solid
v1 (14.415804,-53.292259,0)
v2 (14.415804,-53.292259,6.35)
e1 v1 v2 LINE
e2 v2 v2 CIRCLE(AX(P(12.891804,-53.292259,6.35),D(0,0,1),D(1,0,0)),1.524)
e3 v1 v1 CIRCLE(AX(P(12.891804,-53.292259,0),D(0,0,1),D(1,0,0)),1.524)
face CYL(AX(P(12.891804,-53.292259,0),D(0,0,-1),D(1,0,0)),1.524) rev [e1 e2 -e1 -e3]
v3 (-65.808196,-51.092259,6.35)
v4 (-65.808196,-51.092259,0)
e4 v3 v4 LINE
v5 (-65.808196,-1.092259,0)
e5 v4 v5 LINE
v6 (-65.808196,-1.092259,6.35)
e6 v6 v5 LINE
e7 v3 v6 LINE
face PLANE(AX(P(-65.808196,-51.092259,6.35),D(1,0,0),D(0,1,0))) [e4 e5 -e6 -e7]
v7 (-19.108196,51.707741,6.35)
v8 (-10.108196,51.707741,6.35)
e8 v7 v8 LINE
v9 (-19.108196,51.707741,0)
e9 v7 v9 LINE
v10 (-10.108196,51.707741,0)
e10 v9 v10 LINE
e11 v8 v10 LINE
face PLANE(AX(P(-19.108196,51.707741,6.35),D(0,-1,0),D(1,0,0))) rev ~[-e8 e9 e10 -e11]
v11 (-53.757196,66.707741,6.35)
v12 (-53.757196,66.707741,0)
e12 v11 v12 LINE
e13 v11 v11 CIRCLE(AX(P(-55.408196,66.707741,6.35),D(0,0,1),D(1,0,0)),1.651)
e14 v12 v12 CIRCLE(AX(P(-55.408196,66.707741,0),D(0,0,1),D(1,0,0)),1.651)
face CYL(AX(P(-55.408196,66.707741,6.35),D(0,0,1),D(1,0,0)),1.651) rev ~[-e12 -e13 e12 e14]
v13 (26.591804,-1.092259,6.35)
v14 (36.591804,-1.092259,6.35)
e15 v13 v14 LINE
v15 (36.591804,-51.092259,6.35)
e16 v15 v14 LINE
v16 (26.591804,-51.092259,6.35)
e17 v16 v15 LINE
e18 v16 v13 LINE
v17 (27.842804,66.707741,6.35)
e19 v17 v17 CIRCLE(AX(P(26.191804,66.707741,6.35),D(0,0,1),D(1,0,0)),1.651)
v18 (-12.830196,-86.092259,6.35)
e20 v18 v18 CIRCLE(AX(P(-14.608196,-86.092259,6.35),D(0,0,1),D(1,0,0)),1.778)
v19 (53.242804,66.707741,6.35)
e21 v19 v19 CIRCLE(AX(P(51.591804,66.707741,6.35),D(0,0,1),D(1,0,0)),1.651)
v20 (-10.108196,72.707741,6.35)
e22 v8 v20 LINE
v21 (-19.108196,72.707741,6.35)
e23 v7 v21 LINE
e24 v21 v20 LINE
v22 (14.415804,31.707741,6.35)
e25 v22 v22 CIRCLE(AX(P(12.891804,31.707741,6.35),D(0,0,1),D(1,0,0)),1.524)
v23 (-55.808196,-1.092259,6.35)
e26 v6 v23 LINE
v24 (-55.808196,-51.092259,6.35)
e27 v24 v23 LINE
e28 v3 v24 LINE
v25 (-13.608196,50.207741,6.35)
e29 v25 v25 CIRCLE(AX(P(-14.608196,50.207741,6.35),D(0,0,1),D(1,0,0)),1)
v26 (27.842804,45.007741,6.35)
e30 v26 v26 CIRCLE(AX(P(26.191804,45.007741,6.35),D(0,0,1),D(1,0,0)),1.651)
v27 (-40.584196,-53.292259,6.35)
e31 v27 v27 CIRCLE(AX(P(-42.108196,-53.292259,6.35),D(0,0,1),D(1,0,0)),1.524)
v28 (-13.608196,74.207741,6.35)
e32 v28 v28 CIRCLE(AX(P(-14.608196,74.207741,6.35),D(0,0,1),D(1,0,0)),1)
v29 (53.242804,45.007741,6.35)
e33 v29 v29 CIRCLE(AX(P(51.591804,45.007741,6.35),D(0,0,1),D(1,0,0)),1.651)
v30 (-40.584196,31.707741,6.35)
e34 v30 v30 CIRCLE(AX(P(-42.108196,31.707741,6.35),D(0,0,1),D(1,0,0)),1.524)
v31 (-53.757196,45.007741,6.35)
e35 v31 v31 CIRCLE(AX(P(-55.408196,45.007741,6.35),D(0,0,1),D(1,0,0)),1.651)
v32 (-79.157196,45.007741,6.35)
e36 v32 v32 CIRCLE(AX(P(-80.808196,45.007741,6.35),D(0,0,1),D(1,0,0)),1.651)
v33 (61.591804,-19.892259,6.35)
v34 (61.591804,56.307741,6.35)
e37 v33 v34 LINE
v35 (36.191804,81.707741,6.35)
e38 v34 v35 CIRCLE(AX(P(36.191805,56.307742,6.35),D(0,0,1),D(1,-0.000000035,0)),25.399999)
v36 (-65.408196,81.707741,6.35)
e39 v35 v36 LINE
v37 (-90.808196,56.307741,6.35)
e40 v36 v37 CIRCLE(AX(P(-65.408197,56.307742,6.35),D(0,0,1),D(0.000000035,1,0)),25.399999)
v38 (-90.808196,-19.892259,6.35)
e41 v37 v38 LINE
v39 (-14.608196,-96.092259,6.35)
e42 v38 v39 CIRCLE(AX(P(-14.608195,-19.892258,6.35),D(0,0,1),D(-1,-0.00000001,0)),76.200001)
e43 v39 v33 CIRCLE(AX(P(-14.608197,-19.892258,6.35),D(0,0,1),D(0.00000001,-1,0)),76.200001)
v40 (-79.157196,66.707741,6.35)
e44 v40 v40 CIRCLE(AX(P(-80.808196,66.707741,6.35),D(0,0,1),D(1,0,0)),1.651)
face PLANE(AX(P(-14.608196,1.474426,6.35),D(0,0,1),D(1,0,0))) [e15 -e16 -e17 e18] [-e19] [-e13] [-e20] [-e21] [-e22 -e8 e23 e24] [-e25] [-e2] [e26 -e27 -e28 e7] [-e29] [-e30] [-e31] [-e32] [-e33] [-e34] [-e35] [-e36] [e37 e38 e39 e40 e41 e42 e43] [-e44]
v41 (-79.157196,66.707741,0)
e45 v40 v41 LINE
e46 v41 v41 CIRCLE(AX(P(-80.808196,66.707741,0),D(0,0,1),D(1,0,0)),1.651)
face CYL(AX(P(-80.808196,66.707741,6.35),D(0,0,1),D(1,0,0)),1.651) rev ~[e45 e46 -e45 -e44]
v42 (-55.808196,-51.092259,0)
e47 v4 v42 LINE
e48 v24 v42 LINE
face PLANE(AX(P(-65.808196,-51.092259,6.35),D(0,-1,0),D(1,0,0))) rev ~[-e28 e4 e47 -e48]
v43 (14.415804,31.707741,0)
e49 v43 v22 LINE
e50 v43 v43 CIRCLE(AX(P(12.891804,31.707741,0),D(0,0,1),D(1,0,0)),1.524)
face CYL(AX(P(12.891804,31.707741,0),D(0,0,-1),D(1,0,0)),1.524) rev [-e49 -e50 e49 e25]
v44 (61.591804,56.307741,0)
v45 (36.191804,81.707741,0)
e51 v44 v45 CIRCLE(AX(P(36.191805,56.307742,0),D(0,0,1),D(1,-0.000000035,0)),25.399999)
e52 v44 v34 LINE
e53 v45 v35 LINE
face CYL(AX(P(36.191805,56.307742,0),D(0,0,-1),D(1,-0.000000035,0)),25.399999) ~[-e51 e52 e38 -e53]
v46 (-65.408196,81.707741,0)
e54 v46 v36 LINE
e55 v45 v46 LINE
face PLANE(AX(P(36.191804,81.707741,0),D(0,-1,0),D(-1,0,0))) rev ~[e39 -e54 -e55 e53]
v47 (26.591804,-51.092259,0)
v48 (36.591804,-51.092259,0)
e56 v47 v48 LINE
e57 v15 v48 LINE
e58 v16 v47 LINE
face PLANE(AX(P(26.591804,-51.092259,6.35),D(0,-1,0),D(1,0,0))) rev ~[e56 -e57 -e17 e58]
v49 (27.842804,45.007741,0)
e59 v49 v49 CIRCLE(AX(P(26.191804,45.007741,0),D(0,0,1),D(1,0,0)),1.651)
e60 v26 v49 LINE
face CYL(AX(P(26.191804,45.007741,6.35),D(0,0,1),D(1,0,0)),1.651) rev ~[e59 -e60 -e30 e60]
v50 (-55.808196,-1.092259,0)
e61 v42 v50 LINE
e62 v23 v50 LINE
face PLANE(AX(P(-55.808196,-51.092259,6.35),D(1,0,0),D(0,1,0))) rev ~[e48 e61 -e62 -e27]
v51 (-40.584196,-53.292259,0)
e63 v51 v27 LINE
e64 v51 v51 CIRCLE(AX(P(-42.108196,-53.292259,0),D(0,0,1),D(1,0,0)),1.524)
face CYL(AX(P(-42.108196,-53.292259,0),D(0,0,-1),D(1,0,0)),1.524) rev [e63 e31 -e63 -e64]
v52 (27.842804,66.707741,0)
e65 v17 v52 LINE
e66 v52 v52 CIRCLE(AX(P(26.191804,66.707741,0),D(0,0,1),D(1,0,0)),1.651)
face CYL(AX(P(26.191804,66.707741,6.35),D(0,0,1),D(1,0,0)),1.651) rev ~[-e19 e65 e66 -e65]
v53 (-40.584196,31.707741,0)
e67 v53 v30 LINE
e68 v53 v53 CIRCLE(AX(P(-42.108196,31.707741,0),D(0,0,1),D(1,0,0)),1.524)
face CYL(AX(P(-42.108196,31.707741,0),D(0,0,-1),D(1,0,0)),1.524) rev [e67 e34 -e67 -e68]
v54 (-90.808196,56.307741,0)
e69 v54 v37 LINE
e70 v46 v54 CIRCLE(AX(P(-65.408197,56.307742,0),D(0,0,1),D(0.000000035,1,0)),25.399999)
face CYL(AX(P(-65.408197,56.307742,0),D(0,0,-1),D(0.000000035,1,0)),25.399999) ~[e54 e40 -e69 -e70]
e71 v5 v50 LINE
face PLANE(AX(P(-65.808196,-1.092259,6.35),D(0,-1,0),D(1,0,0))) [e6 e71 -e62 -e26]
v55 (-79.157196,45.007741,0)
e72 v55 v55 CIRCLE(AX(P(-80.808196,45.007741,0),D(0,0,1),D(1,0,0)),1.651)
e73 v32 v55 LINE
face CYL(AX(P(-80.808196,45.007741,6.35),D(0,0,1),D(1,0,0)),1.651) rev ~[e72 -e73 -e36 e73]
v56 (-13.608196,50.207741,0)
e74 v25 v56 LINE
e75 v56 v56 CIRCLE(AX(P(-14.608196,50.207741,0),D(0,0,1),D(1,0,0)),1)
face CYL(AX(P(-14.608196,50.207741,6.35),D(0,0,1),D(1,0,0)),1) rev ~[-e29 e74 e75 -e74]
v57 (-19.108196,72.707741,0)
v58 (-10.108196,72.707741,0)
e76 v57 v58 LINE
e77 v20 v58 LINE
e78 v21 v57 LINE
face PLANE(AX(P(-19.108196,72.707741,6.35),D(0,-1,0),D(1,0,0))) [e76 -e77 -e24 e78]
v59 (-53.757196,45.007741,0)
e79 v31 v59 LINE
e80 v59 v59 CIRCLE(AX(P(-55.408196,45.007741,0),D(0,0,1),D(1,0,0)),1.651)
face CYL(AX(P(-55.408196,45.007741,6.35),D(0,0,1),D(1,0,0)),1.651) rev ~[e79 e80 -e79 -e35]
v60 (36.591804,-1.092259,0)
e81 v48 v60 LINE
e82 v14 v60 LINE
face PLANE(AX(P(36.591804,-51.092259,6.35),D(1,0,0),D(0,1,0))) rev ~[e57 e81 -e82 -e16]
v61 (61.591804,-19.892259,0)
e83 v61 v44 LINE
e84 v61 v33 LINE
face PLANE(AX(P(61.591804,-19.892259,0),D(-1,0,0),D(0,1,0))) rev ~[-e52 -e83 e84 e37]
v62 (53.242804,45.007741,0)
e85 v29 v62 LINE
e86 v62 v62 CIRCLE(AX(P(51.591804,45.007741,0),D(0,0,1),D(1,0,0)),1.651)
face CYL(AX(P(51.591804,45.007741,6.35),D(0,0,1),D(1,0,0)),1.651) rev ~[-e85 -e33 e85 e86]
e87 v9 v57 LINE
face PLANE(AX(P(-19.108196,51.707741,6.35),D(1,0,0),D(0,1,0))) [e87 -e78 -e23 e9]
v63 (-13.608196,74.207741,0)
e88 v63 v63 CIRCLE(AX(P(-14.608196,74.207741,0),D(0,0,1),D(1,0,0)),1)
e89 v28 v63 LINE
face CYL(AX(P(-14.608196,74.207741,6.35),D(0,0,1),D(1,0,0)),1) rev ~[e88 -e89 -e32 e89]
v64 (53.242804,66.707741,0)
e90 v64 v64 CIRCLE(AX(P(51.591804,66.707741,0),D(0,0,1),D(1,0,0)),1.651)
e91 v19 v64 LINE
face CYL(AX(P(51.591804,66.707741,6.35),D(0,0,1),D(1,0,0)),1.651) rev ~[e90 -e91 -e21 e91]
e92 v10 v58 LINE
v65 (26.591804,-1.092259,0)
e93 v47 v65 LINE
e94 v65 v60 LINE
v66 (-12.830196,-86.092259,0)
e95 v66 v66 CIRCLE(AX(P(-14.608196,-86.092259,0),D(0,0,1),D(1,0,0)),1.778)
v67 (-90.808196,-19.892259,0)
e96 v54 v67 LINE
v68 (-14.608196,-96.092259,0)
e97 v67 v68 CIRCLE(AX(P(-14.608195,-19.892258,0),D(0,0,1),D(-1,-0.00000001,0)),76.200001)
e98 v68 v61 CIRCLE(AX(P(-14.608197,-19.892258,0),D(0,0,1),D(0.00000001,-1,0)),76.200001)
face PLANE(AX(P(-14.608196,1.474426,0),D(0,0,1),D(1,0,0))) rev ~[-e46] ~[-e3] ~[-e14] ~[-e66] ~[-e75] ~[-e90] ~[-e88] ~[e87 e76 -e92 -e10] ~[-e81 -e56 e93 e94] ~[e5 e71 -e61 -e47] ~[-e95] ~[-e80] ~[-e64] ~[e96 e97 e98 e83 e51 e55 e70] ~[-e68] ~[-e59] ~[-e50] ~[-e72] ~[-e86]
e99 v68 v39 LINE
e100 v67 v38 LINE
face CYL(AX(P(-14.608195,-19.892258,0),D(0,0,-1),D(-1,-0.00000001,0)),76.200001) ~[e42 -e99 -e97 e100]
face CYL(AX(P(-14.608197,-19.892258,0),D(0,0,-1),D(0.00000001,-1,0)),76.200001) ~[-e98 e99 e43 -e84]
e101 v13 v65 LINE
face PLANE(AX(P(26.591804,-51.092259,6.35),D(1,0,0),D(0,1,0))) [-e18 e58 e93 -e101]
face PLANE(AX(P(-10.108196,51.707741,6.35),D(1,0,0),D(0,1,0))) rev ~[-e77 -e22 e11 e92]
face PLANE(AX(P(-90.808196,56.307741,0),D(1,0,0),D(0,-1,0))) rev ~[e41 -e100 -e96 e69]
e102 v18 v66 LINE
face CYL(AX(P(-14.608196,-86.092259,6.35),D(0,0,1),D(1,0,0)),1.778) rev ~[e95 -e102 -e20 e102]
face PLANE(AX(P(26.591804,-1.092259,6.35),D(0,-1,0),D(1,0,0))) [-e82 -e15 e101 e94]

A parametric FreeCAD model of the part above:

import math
import FreeCAD as App
import Part
import Sketcher

V = App.Vector
Q = App.Units.Quantity


def add_polygon(sketch, points):
    """Adds a closed chain of lines whose ends are joined by coincident constraints."""
    first, n = sketch.GeometryCount, len(points)
    for a, b in zip(points, points[1:] + points[:1]):
        sketch.addGeometry(Part.LineSegment(App.Vector(*a, 0), App.Vector(*b, 0)), False)
    for i in range(n):
        sketch.addConstraint(Sketcher.Constraint("Coincident", first + i, 2, first + (i + 1) % n, 1))

doc = App.newDocument("Part")
params = doc.addObject("Spreadsheet::Sheet", "Params")
for row, (alias, value) in enumerate([
    ("sketch1_radius", "1 in"),
    ("sketch1_radius2", "3 in"),
    ("sketch1_diameter", "0.12 in"),
    ("sketch1_height", "3 in"),
    ("pad1_length", "0.25 in"),
    ("sketch2_diameter", "0.13 in"),
    ("sketch3_diameter", "0.14 in"),
], start=1):
    params.set(f"A{row}", alias)
    params.set(f"B{row}", "=" + value)
    params.setAlias(f"B{row}", alias)

body = doc.addObject("PartDesign::Body", "Body")

# Sketch on XY plane
sketch1 = doc.addObject("Sketcher::SketchObject", "Sketch")
body.addObject(sketch1)
sketch1.AttachmentSupport = (doc.XY_Plane, [""])
sketch1.MapMode = "FlatFace"
sketch1.addGeometry([
    Part.LineSegment(V(36.2, 81.7, 0), V(-65.4, 81.7, 0)),  # 0
    Part.ArcOfCircle(Part.Circle(V(-65.4, 56.3, 0), V(0, 0, 1), 25.4), math.radians(90), math.radians(180)),  # 1
    Part.LineSegment(V(-90.8, 56.3, 0), V(-90.8, -19.9, 0)),  # 2
    Part.ArcOfCircle(Part.Circle(V(-14.6, -19.9, 0), V(0, 0, 1), 76.2), math.radians(-180), math.radians(-90)),  # 3
    Part.ArcOfCircle(Part.Circle(V(-14.6, -19.9, 0), V(0, 0, 1), 76.2), math.radians(-90), math.radians(0)),  # 4
    Part.LineSegment(V(61.6, -19.9, 0), V(61.6, 56.3, 0)),  # 5
    Part.ArcOfCircle(Part.Circle(V(36.2, 56.3, 0), V(0, 0, 1), 25.4), math.radians(0), math.radians(90)),  # 6
    Part.Circle(V(-42.1, -53.3, 0), V(0, 0, 1), 1.5),  # 7
    Part.Circle(V(12.9, -53.3, 0), V(0, 0, 1), 1.5),  # 8
    Part.Circle(V(-42.1, 31.7, 0), V(0, 0, 1), 1.5),  # 9
    Part.Circle(V(12.9, 31.7, 0), V(0, 0, 1), 1.5),  # 10
], False)
sketch1.addConstraint([
    Sketcher.Constraint("Tangent", 0, 2, 1, 1),
    Sketcher.Constraint("Tangent", 1, 2, 2, 1),
    Sketcher.Constraint("Tangent", 2, 2, 3, 1),
    Sketcher.Constraint("Tangent", 3, 2, 4, 1),
    Sketcher.Constraint("Tangent", 4, 2, 5, 1),
    Sketcher.Constraint("Tangent", 5, 2, 6, 1),
    Sketcher.Constraint("Tangent", 6, 2, 0, 1),
    Sketcher.Constraint("Horizontal", 0),
    Sketcher.Constraint("Vertical", 2),
    Sketcher.Constraint("Vertical", 5),
    Sketcher.Constraint("Equal", 3, 4),
    Sketcher.Constraint("Equal", 1, 6),
    Sketcher.Constraint("Equal", 7, 8),
    Sketcher.Constraint("Equal", 8, 9),
    Sketcher.Constraint("Equal", 9, 10),
    Sketcher.Constraint("Horizontal", 7, 3, 8, 3),
    Sketcher.Constraint("Horizontal", 9, 3, 10, 3),
    Sketcher.Constraint("Vertical", 7, 3, 9, 3),
    Sketcher.Constraint("Vertical", 8, 3, 10, 3),
    Sketcher.Constraint("Vertical", 4, 3, 3, 2),
    Sketcher.Constraint("Radius", 1, Q("1 in")),
    Sketcher.Constraint("Radius", 3, Q("3 in")),
    Sketcher.Constraint("Diameter", 7, Q("0.12 in")),
    Sketcher.Constraint("DistanceY", 2, 2, 2, 1, Q("3 in")),
    Sketcher.Constraint("DistanceX", 7, 3, 4, 3, 27.499999),
    Sketcher.Constraint("DistanceY", 7, 3, 4, 3, 33.400001),
    Sketcher.Constraint("DistanceX", 3, 3, 8, 3, 27.499999),
    Sketcher.Constraint("DistanceY", 9, 3, 1, 3, 24.600001),
    Sketcher.Constraint("DistanceY", -1, 1, 1, 3, 56.307742),
    Sketcher.Constraint("DistanceX", 1, 3, -1, 1, 65.408197),
])
sketch1.setExpression("Constraints[20]", "Params.sketch1_radius")
sketch1.setExpression("Constraints[21]", "Params.sketch1_radius2")
sketch1.setExpression("Constraints[22]", "Params.sketch1_diameter")
sketch1.setExpression("Constraints[23]", "Params.sketch1_height")
pad1 = doc.addObject("PartDesign::Pad", "Pad")
body.addObject(pad1)
pad1.Profile = sketch1
pad1.setExpression("Length", "Params.pad1_length")

# Sketch on XY plane
sketch2 = doc.addObject("Sketcher::SketchObject", "Sketch001")
body.addObject(sketch2)
sketch2.AttachmentSupport = (doc.XY_Plane, [""])
sketch2.MapMode = "FlatFace"
sketch2.AttachmentOffset = App.Placement(V(0, 0, 0.25 * 25.4), App.Rotation())
sketch2.addGeometry([
    Part.Circle(V(-80.8, 66.7, 0), V(0, 0, 1), 1.7),  # 0
    Part.Circle(V(-80.8, 45, 0), V(0, 0, 1), 1.7),  # 1
    Part.Circle(V(-55.4, 66.7, 0), V(0, 0, 1), 1.7),  # 2
    Part.Circle(V(-55.4, 45, 0), V(0, 0, 1), 1.7),  # 3
    Part.Circle(V(26.2, 66.7, 0), V(0, 0, 1), 1.7),  # 4
    Part.Circle(V(51.6, 66.7, 0), V(0, 0, 1), 1.7),  # 5
    Part.Circle(V(26.2, 45, 0), V(0, 0, 1), 1.7),  # 6
    Part.Circle(V(51.6, 45, 0), V(0, 0, 1), 1.7),  # 7
], False)
sketch2.addConstraint([
    Sketcher.Constraint("Equal", 0, 1),
    Sketcher.Constraint("Equal", 1, 2),
    Sketcher.Constraint("Equal", 2, 3),
    Sketcher.Constraint("Equal", 3, 4),
    Sketcher.Constraint("Equal", 4, 5),
    Sketcher.Constraint("Equal", 5, 6),
    Sketcher.Constraint("Equal", 6, 7),
    Sketcher.Constraint("Horizontal", 0, 3, 2, 3),
    Sketcher.Constraint("Horizontal", 1, 3, 3, 3),
    Sketcher.Constraint("Horizontal", 2, 3, 4, 3),
    Sketcher.Constraint("Horizontal", 4, 3, 5, 3),
    Sketcher.Constraint("Horizontal", 3, 3, 6, 3),
    Sketcher.Constraint("Horizontal", 6, 3, 7, 3),
    Sketcher.Constraint("Vertical", 0, 3, 1, 3),
    Sketcher.Constraint("Vertical", 2, 3, 3, 3),
    Sketcher.Constraint("Vertical", 4, 3, 6, 3),
    Sketcher.Constraint("Vertical", 5, 3, 7, 3),
    Sketcher.Constraint("Diameter", 0, Q("0.13 in")),
    Sketcher.Constraint("DistanceX", 0, 3, 2, 3, Q("1 in")),
    Sketcher.Constraint("DistanceX", 4, 3, 5, 3, Q("1 in")),
    Sketcher.Constraint("DistanceY", 1, 3, 0, 3, 21.7),
    Sketcher.Constraint("DistanceX", 2, 3, 4, 3, 81.6),
    Sketcher.Constraint("DistanceY", -1, 1, 0, 3, 66.707741),
    Sketcher.Constraint("DistanceX", 0, 3, -1, 1, 80.808196),
])
sketch2.setExpression("Constraints[17]", "Params.sketch2_diameter")
pocket1 = doc.addObject("PartDesign::Pocket", "Pocket")
body.addObject(pocket1)
pocket1.Profile = sketch2
pocket1.Type = "ThroughAll"

# Sketch on XY plane
sketch3 = doc.addObject("Sketcher::SketchObject", "Sketch002")
body.addObject(sketch3)
sketch3.AttachmentSupport = (doc.XY_Plane, [""])
sketch3.MapMode = "FlatFace"
sketch3.AttachmentOffset = App.Placement(V(0, 0, 0.25 * 25.4), App.Rotation())
sketch3.addGeometry(Part.Circle(V(-14.6, -86.1, 0), V(0, 0, 1), 1.8), False)
sketch3.addConstraint([
    Sketcher.Constraint("Diameter", 0, Q("0.14 in")),
    Sketcher.Constraint("DistanceY", 0, 3, -1, 1, 86.092259),
    Sketcher.Constraint("DistanceX", 0, 3, -1, 1, 14.608196),
])
sketch3.setExpression("Constraints[0]", "Params.sketch3_diameter")
pocket2 = doc.addObject("PartDesign::Pocket", "Pocket001")
body.addObject(pocket2)
pocket2.Profile = sketch3
pocket2.Type = "ThroughAll"

# Sketch on XY plane
sketch4 = doc.addObject("Sketcher::SketchObject", "Sketch003")
body.addObject(sketch4)
sketch4.AttachmentSupport = (doc.XY_Plane, [""])
sketch4.MapMode = "FlatFace"
sketch4.AttachmentOffset = App.Placement(V(0, 0, 0.25 * 25.4), App.Rotation())
add_polygon(sketch4, [(-65.8, -1.1), (-65.8, -51.1), (-55.8, -51.1), (-55.8, -1.1)])  # lines 0-3
add_polygon(sketch4, [(26.6, -1.1), (26.6, -51.1), (36.6, -51.1), (36.6, -1.1)])  # lines 4-7
add_polygon(sketch4, [(-19.1, 72.7), (-19.1, 51.7), (-10.1, 51.7), (-10.1, 72.7)])  # lines 8-11
sketch4.addGeometry(Part.Circle(V(-14.6, 74.2, 0), V(0, 0, 1), 1), False)  # 12
sketch4.addGeometry(Part.Circle(V(-14.6, 50.2, 0), V(0, 0, 1), 1), False)  # 13
sketch4.addConstraint([
    Sketcher.Constraint("Vertical", 0),
    Sketcher.Constraint("Horizontal", 1),
    Sketcher.Constraint("Vertical", 2),
    Sketcher.Constraint("Horizontal", 3),
    Sketcher.Constraint("Vertical", 4),
    Sketcher.Constraint("Horizontal", 5),
    Sketcher.Constraint("Vertical", 6),
    Sketcher.Constraint("Horizontal", 7),
    Sketcher.Constraint("Vertical", 8),
    Sketcher.Constraint("Horizontal", 9),
    Sketcher.Constraint("Vertical", 10),
    Sketcher.Constraint("Horizontal", 11),
    Sketcher.Constraint("Equal", 12, 13),
    Sketcher.Constraint("Horizontal", 1, 2, 4, 2),
    Sketcher.Constraint("Horizontal", 3, 2, 6, 2),
    Sketcher.Constraint("Vertical", 12, 3, 13, 3),
    Sketcher.Constraint("Equal", 3, 5),
    Sketcher.Constraint("Diameter", 12, 2.0),
    Sketcher.Constraint("DistanceX", 1, 1, 1, 2, 10.0),
    Sketcher.Constraint("DistanceX", 9, 1, 9, 2, 9.0),
    Sketcher.Constraint("DistanceY", 0, 2, 0, 1, 50.0),
    Sketcher.Constraint("DistanceY", 8, 2, 8, 1, 21.0),
    Sketcher.Constraint("DistanceY", 13, 3, 12, 3, 24.0),
    Sketcher.Constraint("DistanceX", 0, 2, 13, 3, 51.2),
    Sketcher.Constraint("DistanceY", 0, 2, 13, 3, 101.3),
    Sketcher.Constraint("DistanceX", 1, 2, 4, 2, 82.4),
    Sketcher.Constraint("DistanceX", 8, 2, 13, 3, 4.5),
    Sketcher.Constraint("DistanceY", 13, 3, 8, 2, 1.5),
    Sketcher.Constraint("DistanceY", -1, 1, 12, 3, 74.207741),
    Sketcher.Constraint("DistanceX", 12, 3, -1, 1, 14.608196),
])
pocket3 = doc.addObject("PartDesign::Pocket", "Pocket002")
body.addObject(pocket3)
pocket3.Profile = sketch4
pocket3.Type = "ThroughAll"

doc.recompute()
